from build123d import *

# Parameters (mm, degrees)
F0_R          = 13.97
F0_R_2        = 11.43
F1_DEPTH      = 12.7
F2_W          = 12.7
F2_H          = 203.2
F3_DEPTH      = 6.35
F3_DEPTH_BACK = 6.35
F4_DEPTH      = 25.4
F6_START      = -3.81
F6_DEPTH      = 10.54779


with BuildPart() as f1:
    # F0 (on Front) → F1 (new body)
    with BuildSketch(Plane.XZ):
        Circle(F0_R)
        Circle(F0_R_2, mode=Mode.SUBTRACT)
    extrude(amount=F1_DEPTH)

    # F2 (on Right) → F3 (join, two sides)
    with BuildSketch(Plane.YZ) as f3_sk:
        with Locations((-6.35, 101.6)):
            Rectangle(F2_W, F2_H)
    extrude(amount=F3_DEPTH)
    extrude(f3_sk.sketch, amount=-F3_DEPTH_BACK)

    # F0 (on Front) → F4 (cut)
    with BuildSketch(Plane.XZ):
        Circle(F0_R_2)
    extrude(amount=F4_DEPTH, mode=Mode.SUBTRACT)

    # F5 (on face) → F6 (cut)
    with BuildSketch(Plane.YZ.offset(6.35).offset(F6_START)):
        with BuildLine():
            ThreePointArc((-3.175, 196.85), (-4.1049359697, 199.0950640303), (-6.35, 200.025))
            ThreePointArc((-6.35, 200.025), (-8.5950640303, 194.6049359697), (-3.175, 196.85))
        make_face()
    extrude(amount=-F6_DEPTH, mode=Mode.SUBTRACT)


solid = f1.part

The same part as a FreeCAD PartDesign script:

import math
import FreeCAD as App
import Part
import Sketcher
Q = App.Units.Quantity


def add_polygon(sketch, points):
    """Adds a closed chain of lines whose ends are joined by coincident constraints."""
    first, n = sketch.GeometryCount, len(points)
    for a, b in zip(points, points[1:] + points[:1]):
        sketch.addGeometry(Part.LineSegment(App.Vector(*a, 0), App.Vector(*b, 0)), False)
    for i in range(n):
        sketch.addConstraint(Sketcher.Constraint("Coincident", first + i, 2, first + (i + 1) % n, 1))

doc = App.newDocument("Part")
body = doc.addObject("PartDesign::Body", "Body")

# Sketch on XZ plane
sketch1 = body.newObject("Sketcher::SketchObject", "Sketch")
sketch1.AttachmentSupport = (doc.getObject("XZ_Plane"), [""])
sketch1.MapMode = "FlatFace"
sketch1.addGeometry([
    Part.Circle(App.Vector(0, 0, 0), App.Vector(0, 0, 1), 13.97),
    Part.Circle(App.Vector(0, 0, 0), App.Vector(0, 0, 1), 11.43),
], False)
sketch1.addConstraint([
    Sketcher.Constraint("Coincident", 0, 3, -1, 1),
    Sketcher.Constraint("Coincident", 1, 3, -1, 1),
    Sketcher.Constraint("Diameter", 0, Q("1.1 in")),
    Sketcher.Constraint("Diameter", 1, Q("0.9 in")),
])
pad1 = body.newObject("PartDesign::Pad", "Pad")
pad1.Profile = sketch1
pad1.Length = Q("0.5 in")

# Sketch on YZ plane
sketch2 = body.newObject("Sketcher::SketchObject", "Sketch001")
sketch2.AttachmentSupport = (doc.getObject("YZ_Plane"), [""])
sketch2.MapMode = "FlatFace"
add_polygon(sketch2, [(-12.7, 203.2), (-12.7, 0), (0, 0), (0, 203.2)])  # lines 0-3
sketch2.addConstraint([
    Sketcher.Constraint("Vertical", 0),
    Sketcher.Constraint("Horizontal", 1),
    Sketcher.Constraint("Vertical", 2),
    Sketcher.Constraint("Horizontal", 3),
    Sketcher.Constraint("Coincident", 1, 2, -1, 1),
    Sketcher.Constraint("DistanceY", 0, 2, 0, 1, Q("8 in")),
    Sketcher.Constraint("DistanceX", 1, 1, 1, 2, Q("0.5 in")),
])
pad2 = body.newObject("PartDesign::Pad", "Pad001")
pad2.Profile = sketch2
pad2.Type = "TwoLengths"
pad2.Length = Q("0.25 in")
pad2.Length2 = Q("0.25 in")

# Sketch on XZ plane
sketch3 = body.newObject("Sketcher::SketchObject", "Sketch002")
sketch3.AttachmentSupport = (doc.getObject("XZ_Plane"), [""])
sketch3.MapMode = "FlatFace"
sketch3.addGeometry(Part.Circle(App.Vector(0, 0, 0), App.Vector(0, 0, 1), 11.43), False)
sketch3.addConstraint([
    Sketcher.Constraint("Coincident", 0, 3, -1, 1),
    Sketcher.Constraint("Diameter", 0, Q("0.9 in")),
])
pocket1 = body.newObject("PartDesign::Pocket", "Pocket")
pocket1.Profile = sketch3
pocket1.Length = Q("1 in")
pocket1.Reversed = True

# Sketch on YZ plane
sketch4 = body.newObject("Sketcher::SketchObject", "Sketch003")
sketch4.AttachmentSupport = (doc.getObject("YZ_Plane"), [""])
sketch4.MapMode = "FlatFace"
sketch4.AttachmentOffset = App.Placement(App.Vector(0, 0, 0.1 * 25.4), App.Rotation())
sketch4.addGeometry([
    Part.ArcOfCircle(Part.Circle(App.Vector(-6.35, 196.85, 0), App.Vector(0, 0, 1), 3.175), math.radians(0), math.radians(90)),
    Part.ArcOfCircle(Part.Circle(App.Vector(-6.35, 196.85, 0), App.Vector(0, 0, 1), 3.175), math.radians(90), math.radians(360)),
], False)
sketch4.addConstraint([
    Sketcher.Constraint("Tangent", 0, 1, 1, 2),
    Sketcher.Constraint("Coincident", 1, 1, 0, 2),
    Sketcher.Constraint("Horizontal", 1, 3, 0, 1),
    Sketcher.Constraint("Vertical", 0, 3, 1, 1),
    Sketcher.Constraint("Radius", 0, Q("0.125 in")),
    Sketcher.Constraint("DistanceX", 0, 3, -1, 1, Q("0.25 in")),
    Sketcher.Constraint("DistanceY", -1, 1, 0, 3, Q("7.75 in")),
])
pocket2 = body.newObject("PartDesign::Pocket", "Pocket001")
pocket2.Profile = sketch4
pocket2.Length = 10.54779

doc.recompute()
